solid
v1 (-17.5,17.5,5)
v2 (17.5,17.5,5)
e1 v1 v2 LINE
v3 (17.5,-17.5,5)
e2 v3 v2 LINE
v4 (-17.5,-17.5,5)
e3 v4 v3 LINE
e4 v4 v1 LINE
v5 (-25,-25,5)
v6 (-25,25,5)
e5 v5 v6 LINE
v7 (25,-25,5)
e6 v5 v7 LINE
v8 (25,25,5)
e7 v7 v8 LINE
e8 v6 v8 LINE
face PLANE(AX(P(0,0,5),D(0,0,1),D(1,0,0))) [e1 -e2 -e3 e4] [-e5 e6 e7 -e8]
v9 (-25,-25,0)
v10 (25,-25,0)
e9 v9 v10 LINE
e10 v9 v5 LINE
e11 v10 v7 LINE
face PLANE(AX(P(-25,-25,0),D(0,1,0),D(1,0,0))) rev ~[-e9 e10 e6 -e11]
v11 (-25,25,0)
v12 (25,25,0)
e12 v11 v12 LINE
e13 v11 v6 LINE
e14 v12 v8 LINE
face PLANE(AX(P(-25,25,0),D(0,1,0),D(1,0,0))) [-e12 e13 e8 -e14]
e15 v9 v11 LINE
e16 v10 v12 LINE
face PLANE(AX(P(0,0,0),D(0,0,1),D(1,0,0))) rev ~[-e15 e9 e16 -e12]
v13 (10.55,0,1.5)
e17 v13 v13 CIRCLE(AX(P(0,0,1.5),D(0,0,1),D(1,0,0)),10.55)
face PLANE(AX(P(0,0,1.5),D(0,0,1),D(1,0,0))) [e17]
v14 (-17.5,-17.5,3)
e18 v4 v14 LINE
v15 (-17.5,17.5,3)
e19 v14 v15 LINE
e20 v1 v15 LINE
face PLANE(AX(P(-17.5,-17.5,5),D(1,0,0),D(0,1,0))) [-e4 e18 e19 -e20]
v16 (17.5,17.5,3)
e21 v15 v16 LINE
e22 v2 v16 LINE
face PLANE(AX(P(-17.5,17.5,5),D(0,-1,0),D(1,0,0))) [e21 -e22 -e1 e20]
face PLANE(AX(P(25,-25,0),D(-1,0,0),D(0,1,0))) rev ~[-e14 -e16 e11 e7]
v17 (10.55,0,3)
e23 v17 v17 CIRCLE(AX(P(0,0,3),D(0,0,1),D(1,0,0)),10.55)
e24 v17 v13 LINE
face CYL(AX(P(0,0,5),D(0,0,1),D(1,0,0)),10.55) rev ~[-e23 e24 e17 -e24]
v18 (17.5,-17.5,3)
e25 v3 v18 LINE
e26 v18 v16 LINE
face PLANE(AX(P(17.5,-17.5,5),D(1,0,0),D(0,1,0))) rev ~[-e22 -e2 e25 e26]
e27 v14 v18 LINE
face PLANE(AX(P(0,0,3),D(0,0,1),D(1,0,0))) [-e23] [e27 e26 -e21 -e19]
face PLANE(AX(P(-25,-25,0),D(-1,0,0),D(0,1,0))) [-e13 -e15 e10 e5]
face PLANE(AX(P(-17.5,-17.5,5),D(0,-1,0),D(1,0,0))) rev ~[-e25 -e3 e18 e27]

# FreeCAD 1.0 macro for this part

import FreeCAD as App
import Part
import Sketcher
Q = App.Units.Quantity

doc = App.newDocument("Part")
params = doc.addObject("Spreadsheet::Sheet", "Params")
for row, (alias, value) in enumerate([
    ("sketch1_width", "50 mm"),
    ("pad1_length", "5 mm"),
    ("sketch2_width", "35 mm"),
    ("pocket1_length", "2 mm"),
    ("sketch3_diameter", "21.1 mm"),
    ("pocket2_length", "3.5 mm"),
], start=1):
    params.set(f"A{row}", alias)
    params.set(f"B{row}", "=" + value)
    params.setAlias(f"B{row}", alias)

body = doc.addObject("PartDesign::Body", "Body")

# Sketch on XY plane
sketch1 = doc.addObject("Sketcher::SketchObject", "Sketch")
body.addObject(sketch1)
sketch1.AttachmentSupport = (doc.XY_Plane, [""])
sketch1.MapMode = "FlatFace"
sketch1.addGeometry(Part.LineSegment(App.Vector(-25, 25, 0), App.Vector(-25, -25, 0)), False)
sketch1.addGeometry(Part.LineSegment(App.Vector(-25, -25, 0), App.Vector(25, -25, 0)), False)
sketch1.addGeometry(Part.LineSegment(App.Vector(25, -25, 0), App.Vector(25, 25, 0)), False)
sketch1.addGeometry(Part.LineSegment(App.Vector(25, 25, 0), App.Vector(-25, 25, 0)), False)
sketch1.addConstraint(Sketcher.Constraint("Coincident", 0, 2, 1, 1))
sketch1.addConstraint(Sketcher.Constraint("Coincident", 1, 2, 2, 1))
sketch1.addConstraint(Sketcher.Constraint("Coincident", 2, 2, 3, 1))
sketch1.addConstraint(Sketcher.Constraint("Coincident", 3, 2, 0, 1))
sketch1.addConstraint(Sketcher.Constraint("Vertical", 0))
sketch1.addConstraint(Sketcher.Constraint("Horizontal", 1))
sketch1.addConstraint(Sketcher.Constraint("Vertical", 2))
sketch1.addConstraint(Sketcher.Constraint("Horizontal", 3))
sketch1.addConstraint(Sketcher.Constraint("Symmetric", 0, 2, 2, 2, -1, 1))
sketch1.addConstraint(Sketcher.Constraint("Equal", 3, 0))
sketch1.addConstraint(Sketcher.Constraint("DistanceX", 1, 1, 1, 2, Q("50 mm")))
sketch1.setExpression("Constraints[10]", "Params.sketch1_width")
pad1 = doc.addObject("PartDesign::Pad", "Pad")
body.addObject(pad1)
pad1.Profile = sketch1
pad1.setExpression("Length", "Params.pad1_length")

# Sketch on XY plane
sketch2 = doc.addObject("Sketcher::SketchObject", "Sketch001")
body.addObject(sketch2)
sketch2.AttachmentSupport = (doc.XY_Plane, [""])
sketch2.MapMode = "FlatFace"
sketch2.AttachmentOffset = App.Placement(App.Vector(0, 0, 5), App.Rotation())
sketch2.addGeometry(Part.LineSegment(App.Vector(-18, 18, 0), App.Vector(-18, -18, 0)), False)
sketch2.addGeometry(Part.LineSegment(App.Vector(-18, -18, 0), App.Vector(18, -18, 0)), False)
sketch2.addGeometry(Part.LineSegment(App.Vector(18, -18, 0), App.Vector(18, 18, 0)), False)
sketch2.addGeometry(Part.LineSegment(App.Vector(18, 18, 0), App.Vector(-18, 18, 0)), False)
sketch2.addConstraint(Sketcher.Constraint("Coincident", 0, 2, 1, 1))
sketch2.addConstraint(Sketcher.Constraint("Coincident", 1, 2, 2, 1))
sketch2.addConstraint(Sketcher.Constraint("Coincident", 2, 2, 3, 1))
sketch2.addConstraint(Sketcher.Constraint("Coincident", 3, 2, 0, 1))
sketch2.addConstraint(Sketcher.Constraint("Vertical", 0))
sketch2.addConstraint(Sketcher.Constraint("Horizontal", 1))
sketch2.addConstraint(Sketcher.Constraint("Vertical", 2))
sketch2.addConstraint(Sketcher.Constraint("Horizontal", 3))
sketch2.addConstraint(Sketcher.Constraint("Symmetric", 0, 2, 2, 2, -1, 1))
sketch2.addConstraint(Sketcher.Constraint("Equal", 3, 0))
sketch2.addConstraint(Sketcher.Constraint("DistanceX", 1, 1, 1, 2, Q("35 mm")))
sketch2.setExpression("Constraints[10]", "Params.sketch2_width")
pocket1 = doc.addObject("PartDesign::Pocket", "Pocket")
body.addObject(pocket1)
pocket1.Profile = sketch2
pocket1.setExpression("Length", "Params.pocket1_length")

# Sketch on XY plane
sketch3 = doc.addObject("Sketcher::SketchObject", "Sketch002")
body.addObject(sketch3)
sketch3.AttachmentSupport = (doc.XY_Plane, [""])
sketch3.MapMode = "FlatFace"
sketch3.AttachmentOffset = App.Placement(App.Vector(0, 0, 5), App.Rotation())
sketch3.addGeometry(Part.Circle(App.Vector(0, 0, 0), App.Vector(0, 0, 1), 11), False)
sketch3.addConstraint(Sketcher.Constraint("Coincident", 0, 3, -1, 1))
sketch3.addConstraint(Sketcher.Constraint("Diameter", 0, Q("21.1 mm")))
sketch3.setExpression("Constraints[1]", "Params.sketch3_diameter")
pocket2 = doc.addObject("PartDesign::Pocket", "Pocket001")
body.addObject(pocket2)
pocket2.Profile = sketch3
pocket2.setExpression("Length", "Params.pocket2_length")

doc.recompute()
